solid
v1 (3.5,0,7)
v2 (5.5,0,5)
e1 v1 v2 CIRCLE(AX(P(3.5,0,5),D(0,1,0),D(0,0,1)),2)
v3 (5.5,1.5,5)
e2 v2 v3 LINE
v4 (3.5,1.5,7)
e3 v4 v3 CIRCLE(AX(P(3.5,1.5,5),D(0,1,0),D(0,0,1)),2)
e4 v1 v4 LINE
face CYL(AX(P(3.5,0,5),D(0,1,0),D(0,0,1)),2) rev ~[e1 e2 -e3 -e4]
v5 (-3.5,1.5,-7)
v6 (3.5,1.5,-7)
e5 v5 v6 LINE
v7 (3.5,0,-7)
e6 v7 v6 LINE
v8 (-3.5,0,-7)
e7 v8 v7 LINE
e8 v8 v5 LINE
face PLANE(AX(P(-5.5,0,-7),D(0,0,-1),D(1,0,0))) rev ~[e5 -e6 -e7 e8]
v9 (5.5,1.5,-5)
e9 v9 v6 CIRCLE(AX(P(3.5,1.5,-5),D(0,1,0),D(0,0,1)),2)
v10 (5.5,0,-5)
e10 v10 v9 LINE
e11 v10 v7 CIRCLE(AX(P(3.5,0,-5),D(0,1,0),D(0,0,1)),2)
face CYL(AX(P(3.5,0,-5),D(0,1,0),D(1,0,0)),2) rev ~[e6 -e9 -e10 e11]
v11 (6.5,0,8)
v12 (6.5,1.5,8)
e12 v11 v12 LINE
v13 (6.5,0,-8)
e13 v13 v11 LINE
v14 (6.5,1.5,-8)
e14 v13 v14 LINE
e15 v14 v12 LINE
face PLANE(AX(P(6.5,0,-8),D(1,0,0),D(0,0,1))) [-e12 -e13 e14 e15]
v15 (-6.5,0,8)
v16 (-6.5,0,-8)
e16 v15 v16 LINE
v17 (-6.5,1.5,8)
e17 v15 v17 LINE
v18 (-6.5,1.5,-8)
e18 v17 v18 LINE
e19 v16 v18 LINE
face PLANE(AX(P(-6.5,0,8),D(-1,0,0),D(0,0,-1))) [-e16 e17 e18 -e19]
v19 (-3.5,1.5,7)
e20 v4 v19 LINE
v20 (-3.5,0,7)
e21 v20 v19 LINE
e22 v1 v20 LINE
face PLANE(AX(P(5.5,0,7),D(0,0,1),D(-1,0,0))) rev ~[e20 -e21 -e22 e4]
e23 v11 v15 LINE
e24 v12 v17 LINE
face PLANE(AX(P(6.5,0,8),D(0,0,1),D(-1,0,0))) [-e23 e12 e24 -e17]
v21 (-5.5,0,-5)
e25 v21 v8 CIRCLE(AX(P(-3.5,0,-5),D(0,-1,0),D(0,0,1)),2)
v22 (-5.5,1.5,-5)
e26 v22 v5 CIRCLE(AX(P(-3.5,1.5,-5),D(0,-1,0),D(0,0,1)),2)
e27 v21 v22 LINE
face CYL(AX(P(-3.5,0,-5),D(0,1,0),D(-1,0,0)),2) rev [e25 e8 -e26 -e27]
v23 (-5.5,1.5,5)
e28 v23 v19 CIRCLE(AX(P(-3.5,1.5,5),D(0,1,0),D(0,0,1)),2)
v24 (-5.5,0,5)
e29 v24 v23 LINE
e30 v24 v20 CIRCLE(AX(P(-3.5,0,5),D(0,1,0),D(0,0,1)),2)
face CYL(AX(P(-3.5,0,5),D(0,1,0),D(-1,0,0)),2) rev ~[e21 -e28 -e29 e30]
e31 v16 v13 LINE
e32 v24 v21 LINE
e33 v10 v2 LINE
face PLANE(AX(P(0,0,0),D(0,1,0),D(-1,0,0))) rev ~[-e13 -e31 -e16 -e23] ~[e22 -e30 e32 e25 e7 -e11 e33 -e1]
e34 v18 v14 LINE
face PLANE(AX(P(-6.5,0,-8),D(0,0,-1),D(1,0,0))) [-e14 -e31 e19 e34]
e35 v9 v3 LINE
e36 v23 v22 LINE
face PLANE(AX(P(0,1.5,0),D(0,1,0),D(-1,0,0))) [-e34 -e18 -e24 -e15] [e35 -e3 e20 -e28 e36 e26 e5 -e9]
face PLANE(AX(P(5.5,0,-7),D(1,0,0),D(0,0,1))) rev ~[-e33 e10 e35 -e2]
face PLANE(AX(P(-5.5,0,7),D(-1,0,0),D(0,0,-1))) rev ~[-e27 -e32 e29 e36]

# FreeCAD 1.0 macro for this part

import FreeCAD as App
import Part
import Sketcher
from FreeCAD import Vector
Q = App.Units.Quantity


def edges_at(feature, points):
    """Names of the edges that pass closest to the given points."""
    edges = feature.Shape.Edges
    near = lambda p: min(range(len(edges)), key=lambda i: edges[i].distToShape(Part.Vertex(*p))[0])
    return sorted({f"Edge{near(p) + 1}" for p in points})


def add_polygon(sketch, points):
    """Adds a closed chain of lines whose ends are joined by coincident constraints."""
    first, n = sketch.GeometryCount, len(points)
    for a, b in zip(points, points[1:] + points[:1]):
        sketch.addGeometry(Part.LineSegment(App.Vector(*a, 0), App.Vector(*b, 0)), False)
    for i in range(n):
        sketch.addConstraint(Sketcher.Constraint("Coincident", first + i, 2, first + (i + 1) % n, 1))

doc = App.newDocument("Part")
body = doc.addObject("PartDesign::Body", "Body")

# Sketch on XZ plane
sketch1 = body.newObject("Sketcher::SketchObject", "Sketch")
sketch1.AttachmentSupport = (doc.getObject("XZ_Plane"), [""])
sketch1.MapMode = "FlatFace"
add_polygon(sketch1, [(6, -8), (-6, -8), (-6, 8), (6, 8)])  # lines 0-3
add_polygon(sketch1, [(-6, 7), (-6, -7), (6, -7), (6, 7)])  # lines 4-7
sketch1.addConstraint([
    Sketcher.Constraint("Horizontal", 0),
    Sketcher.Constraint("Vertical", 1),
    Sketcher.Constraint("Horizontal", 2),
    Sketcher.Constraint("Vertical", 3),
    Sketcher.Constraint("Vertical", 4),
    Sketcher.Constraint("Horizontal", 5),
    Sketcher.Constraint("Vertical", 6),
    Sketcher.Constraint("Horizontal", 7),
    Sketcher.Constraint("Symmetric", 0, 2, 2, 2, -1, 1),
    Sketcher.Constraint("Symmetric", 4, 2, 6, 2, -1, 1),
    Sketcher.Constraint("DistanceX", 0, 2, 0, 1, Q("13 mm")),
    Sketcher.Constraint("DistanceY", 1, 1, 1, 2, Q("16 mm")),
    Sketcher.Constraint("DistanceX", 0, 2, 4, 2, Q("1 mm")),
    Sketcher.Constraint("DistanceY", 0, 2, 4, 2, Q("1 mm")),
])
pad1 = body.newObject("PartDesign::Pad", "Pad")
pad1.Profile = sketch1
pad1.Length = 1.5
pad1.Reversed = True
doc.recompute()

fillet = body.newObject("PartDesign::Fillet", "Fillet")
fillet.Base = (pad1, edges_at(pad1, [
    (-5.5, 0.75, -7),
    (-5.5, 0.75, 7),
    (5.5, 0.75, 7),
    (5.5, 0.75, -7),
]))
fillet.Radius = 2

doc.recompute()
